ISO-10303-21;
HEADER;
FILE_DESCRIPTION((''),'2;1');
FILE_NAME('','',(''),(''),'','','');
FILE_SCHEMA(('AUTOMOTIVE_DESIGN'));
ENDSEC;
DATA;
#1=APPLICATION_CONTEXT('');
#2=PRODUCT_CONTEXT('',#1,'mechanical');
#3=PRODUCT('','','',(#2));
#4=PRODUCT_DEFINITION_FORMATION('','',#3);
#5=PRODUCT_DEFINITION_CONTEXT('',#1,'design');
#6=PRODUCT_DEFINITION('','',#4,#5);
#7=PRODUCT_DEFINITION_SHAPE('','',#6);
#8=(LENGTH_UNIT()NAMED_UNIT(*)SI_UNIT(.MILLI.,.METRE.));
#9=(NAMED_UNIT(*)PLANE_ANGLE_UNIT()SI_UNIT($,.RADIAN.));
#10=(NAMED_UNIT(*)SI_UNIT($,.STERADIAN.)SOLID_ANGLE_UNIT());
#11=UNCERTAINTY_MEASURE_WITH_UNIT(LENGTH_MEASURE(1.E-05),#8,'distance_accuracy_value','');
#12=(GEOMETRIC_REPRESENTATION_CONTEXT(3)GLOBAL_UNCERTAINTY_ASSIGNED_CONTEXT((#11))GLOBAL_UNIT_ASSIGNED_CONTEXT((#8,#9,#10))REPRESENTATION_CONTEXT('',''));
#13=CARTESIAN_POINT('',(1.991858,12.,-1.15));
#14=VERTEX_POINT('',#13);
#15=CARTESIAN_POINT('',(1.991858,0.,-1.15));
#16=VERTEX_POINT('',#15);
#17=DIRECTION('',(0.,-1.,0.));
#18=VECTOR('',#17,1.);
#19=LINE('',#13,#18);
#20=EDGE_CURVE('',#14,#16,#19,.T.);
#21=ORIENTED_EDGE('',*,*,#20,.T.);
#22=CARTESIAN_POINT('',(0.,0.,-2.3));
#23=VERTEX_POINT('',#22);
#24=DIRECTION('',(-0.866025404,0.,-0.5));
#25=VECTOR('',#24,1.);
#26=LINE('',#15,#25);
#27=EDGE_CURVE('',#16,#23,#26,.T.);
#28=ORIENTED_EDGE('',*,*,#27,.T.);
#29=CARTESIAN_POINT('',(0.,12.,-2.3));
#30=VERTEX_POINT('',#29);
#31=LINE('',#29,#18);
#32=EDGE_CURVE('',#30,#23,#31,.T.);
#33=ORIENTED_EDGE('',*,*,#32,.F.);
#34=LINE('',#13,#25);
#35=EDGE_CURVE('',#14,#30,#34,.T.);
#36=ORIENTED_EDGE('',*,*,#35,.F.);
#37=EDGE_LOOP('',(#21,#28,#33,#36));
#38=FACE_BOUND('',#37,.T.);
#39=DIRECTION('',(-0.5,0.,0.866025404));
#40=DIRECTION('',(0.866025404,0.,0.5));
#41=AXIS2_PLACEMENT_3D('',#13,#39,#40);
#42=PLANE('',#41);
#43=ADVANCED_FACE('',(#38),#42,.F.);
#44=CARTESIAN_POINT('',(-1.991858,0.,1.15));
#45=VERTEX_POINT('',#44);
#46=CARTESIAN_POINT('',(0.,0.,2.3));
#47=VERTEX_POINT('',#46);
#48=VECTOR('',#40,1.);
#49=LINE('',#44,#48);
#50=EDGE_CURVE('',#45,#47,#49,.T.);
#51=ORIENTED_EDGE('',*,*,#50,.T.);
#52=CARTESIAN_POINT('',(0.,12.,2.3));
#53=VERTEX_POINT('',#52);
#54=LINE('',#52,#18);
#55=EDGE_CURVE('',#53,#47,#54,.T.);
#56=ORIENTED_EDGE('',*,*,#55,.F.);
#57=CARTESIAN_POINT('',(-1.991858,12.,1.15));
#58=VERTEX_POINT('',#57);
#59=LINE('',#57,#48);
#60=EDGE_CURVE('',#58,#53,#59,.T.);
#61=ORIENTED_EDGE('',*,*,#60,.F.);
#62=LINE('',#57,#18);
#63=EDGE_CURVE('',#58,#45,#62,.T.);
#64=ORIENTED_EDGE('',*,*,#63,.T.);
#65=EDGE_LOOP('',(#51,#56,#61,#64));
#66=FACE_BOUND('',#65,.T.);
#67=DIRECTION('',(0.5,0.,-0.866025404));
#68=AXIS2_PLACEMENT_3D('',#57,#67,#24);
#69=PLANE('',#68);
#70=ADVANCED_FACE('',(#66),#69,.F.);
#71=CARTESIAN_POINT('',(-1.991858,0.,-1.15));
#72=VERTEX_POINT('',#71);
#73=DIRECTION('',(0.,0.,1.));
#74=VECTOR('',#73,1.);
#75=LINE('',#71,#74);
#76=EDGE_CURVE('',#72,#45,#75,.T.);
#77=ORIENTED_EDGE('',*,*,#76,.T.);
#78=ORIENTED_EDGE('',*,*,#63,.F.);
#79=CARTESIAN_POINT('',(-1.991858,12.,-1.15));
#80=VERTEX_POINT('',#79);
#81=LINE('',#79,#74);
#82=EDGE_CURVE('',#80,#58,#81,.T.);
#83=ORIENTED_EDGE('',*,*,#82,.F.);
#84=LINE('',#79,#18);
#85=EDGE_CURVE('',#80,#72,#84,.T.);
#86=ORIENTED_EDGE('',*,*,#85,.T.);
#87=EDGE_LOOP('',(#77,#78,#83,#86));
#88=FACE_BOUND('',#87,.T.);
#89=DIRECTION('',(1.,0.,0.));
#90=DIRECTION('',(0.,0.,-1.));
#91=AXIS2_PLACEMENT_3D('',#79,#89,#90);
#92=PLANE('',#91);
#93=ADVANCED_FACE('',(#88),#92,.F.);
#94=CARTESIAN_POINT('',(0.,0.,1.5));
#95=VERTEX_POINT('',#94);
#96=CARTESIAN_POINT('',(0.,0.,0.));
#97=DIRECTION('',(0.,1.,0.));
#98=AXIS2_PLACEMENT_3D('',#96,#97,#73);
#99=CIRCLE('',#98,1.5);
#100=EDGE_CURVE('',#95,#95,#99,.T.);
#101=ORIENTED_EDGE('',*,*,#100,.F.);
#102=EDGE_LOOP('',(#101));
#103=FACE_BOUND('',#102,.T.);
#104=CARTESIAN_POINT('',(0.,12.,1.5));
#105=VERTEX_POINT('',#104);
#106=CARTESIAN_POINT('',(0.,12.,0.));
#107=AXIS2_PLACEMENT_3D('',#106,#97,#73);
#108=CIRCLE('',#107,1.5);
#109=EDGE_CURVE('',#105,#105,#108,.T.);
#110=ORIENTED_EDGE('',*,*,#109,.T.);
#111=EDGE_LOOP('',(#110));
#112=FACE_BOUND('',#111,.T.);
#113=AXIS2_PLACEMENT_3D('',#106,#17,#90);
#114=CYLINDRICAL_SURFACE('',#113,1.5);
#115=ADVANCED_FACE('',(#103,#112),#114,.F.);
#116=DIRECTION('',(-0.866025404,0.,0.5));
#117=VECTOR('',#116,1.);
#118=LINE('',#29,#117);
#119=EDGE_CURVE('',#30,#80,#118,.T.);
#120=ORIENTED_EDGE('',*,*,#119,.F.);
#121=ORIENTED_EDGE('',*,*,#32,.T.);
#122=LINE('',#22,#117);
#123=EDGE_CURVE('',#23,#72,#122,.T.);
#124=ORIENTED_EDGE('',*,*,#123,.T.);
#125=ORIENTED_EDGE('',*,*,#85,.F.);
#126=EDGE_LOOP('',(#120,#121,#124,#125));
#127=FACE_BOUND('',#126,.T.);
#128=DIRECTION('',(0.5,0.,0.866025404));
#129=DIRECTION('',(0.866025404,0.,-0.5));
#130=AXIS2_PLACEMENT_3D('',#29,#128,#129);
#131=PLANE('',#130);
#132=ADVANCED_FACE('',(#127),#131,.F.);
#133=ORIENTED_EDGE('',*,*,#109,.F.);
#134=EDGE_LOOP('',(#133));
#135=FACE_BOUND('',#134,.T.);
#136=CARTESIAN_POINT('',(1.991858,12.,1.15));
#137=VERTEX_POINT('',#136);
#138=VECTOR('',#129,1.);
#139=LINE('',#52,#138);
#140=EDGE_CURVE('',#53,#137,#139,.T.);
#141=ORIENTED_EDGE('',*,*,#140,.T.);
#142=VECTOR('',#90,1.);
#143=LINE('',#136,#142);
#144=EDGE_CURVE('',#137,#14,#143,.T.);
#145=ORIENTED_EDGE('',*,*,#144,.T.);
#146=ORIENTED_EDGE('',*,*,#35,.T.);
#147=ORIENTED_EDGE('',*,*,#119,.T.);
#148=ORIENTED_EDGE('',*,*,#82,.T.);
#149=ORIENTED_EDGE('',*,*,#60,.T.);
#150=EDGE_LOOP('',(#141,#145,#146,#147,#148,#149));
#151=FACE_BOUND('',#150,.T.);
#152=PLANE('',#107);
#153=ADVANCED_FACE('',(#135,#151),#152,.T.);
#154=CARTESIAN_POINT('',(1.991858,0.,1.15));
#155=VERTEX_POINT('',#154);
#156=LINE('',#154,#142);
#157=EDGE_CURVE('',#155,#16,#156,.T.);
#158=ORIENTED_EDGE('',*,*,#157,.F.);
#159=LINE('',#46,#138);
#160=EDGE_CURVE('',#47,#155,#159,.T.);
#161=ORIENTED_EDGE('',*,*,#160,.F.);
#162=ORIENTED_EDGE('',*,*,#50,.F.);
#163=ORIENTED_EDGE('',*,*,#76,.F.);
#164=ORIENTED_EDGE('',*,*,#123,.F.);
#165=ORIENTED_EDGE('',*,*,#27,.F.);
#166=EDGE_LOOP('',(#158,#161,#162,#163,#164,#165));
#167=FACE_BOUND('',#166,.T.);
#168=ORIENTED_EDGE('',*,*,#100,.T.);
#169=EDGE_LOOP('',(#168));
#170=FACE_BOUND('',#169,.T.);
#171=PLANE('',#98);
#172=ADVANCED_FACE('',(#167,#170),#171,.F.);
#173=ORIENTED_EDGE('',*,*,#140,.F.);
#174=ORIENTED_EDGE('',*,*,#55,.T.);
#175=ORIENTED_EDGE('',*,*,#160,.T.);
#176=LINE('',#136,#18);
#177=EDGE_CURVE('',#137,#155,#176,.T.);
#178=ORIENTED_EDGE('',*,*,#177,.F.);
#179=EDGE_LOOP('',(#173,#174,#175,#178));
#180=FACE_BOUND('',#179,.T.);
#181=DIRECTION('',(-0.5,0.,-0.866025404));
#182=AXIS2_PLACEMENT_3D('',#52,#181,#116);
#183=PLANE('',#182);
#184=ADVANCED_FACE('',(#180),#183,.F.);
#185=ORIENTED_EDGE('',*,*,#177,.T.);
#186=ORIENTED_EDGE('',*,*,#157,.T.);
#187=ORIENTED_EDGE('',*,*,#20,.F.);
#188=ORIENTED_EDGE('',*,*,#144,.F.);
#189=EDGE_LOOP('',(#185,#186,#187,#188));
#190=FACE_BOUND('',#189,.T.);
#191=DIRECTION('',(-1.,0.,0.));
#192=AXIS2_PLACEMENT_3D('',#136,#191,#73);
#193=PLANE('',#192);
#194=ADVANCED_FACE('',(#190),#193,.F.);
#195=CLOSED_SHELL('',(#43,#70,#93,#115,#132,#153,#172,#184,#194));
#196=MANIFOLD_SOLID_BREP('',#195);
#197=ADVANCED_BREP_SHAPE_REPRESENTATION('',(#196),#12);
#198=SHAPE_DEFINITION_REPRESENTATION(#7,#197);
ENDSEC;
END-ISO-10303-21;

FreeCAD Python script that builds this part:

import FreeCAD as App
import Part
import Sketcher

V = App.Vector
Q = App.Units.Quantity

doc = App.newDocument("Part")
body = doc.addObject("PartDesign::Body", "Body")

sketch1 = doc.addObject("Sketcher::SketchObject", "Sketch")
body.addObject(sketch1)
sketch1.AttachmentSupport = (doc.XZ_Plane, [""])
sketch1.MapMode = "FlatFace"
sketch1.addGeometry([
    Part.LineSegment(V(1.991858, -1.15, 0), V(0, -2.3, 0)),
    Part.LineSegment(V(0, -2.3, 0), V(-1.991858, -1.15, 0)),
    Part.LineSegment(V(-1.991858, -1.15, 0), V(-1.991858, 1.15, 0)),
    Part.LineSegment(V(-1.991858, 1.15, 0), V(0, 2.3, 0)),
    Part.LineSegment(V(0, 2.3, 0), V(1.991858, 1.15, 0)),
    Part.LineSegment(V(1.991858, 1.15, 0), V(1.991858, -1.15, 0)),
    Part.Circle(V(0, 0, 0), V(0, 0, 1), 1.5),
], False)
sketch1.addConstraint([
    Sketcher.Constraint("Coincident", 0, 2, 1, 1),
    Sketcher.Constraint("Coincident", 1, 2, 2, 1),
    Sketcher.Constraint("Coincident", 2, 2, 3, 1),
    Sketcher.Constraint("Coincident", 3, 2, 4, 1),
    Sketcher.Constraint("Coincident", 4, 2, 5, 1),
    Sketcher.Constraint("Coincident", 5, 2, 0, 1),
    Sketcher.Constraint("Vertical", 2),
    Sketcher.Constraint("Vertical", 5),
    Sketcher.Constraint("Coincident", 6, 3, -1, 1),
    Sketcher.Constraint("Symmetric", 0, 2, 3, 2, -1, 1),
    Sketcher.Constraint("Symmetric", 1, 2, 4, 2, -1, 1),
    Sketcher.Constraint("PointOnObject", 0, 2, -2),
    Sketcher.Constraint("Parallel", 0, 3),
    Sketcher.Constraint("Horizontal", 2, 2, 4, 2),
    Sketcher.Constraint("Diameter", 6, 3.0),
    Sketcher.Constraint("Angle", 0, Q("-150 deg")),
    Sketcher.Constraint("DistanceY", 2, 1, 2, 2, 2.3),
    Sketcher.Constraint("Distance", 0, 2.3),
])
pad1 = doc.addObject("PartDesign::Pad", "Pad")
body.addObject(pad1)
pad1.Profile = sketch1
pad1.Length = 12
pad1.Reversed = True

doc.recompute()
